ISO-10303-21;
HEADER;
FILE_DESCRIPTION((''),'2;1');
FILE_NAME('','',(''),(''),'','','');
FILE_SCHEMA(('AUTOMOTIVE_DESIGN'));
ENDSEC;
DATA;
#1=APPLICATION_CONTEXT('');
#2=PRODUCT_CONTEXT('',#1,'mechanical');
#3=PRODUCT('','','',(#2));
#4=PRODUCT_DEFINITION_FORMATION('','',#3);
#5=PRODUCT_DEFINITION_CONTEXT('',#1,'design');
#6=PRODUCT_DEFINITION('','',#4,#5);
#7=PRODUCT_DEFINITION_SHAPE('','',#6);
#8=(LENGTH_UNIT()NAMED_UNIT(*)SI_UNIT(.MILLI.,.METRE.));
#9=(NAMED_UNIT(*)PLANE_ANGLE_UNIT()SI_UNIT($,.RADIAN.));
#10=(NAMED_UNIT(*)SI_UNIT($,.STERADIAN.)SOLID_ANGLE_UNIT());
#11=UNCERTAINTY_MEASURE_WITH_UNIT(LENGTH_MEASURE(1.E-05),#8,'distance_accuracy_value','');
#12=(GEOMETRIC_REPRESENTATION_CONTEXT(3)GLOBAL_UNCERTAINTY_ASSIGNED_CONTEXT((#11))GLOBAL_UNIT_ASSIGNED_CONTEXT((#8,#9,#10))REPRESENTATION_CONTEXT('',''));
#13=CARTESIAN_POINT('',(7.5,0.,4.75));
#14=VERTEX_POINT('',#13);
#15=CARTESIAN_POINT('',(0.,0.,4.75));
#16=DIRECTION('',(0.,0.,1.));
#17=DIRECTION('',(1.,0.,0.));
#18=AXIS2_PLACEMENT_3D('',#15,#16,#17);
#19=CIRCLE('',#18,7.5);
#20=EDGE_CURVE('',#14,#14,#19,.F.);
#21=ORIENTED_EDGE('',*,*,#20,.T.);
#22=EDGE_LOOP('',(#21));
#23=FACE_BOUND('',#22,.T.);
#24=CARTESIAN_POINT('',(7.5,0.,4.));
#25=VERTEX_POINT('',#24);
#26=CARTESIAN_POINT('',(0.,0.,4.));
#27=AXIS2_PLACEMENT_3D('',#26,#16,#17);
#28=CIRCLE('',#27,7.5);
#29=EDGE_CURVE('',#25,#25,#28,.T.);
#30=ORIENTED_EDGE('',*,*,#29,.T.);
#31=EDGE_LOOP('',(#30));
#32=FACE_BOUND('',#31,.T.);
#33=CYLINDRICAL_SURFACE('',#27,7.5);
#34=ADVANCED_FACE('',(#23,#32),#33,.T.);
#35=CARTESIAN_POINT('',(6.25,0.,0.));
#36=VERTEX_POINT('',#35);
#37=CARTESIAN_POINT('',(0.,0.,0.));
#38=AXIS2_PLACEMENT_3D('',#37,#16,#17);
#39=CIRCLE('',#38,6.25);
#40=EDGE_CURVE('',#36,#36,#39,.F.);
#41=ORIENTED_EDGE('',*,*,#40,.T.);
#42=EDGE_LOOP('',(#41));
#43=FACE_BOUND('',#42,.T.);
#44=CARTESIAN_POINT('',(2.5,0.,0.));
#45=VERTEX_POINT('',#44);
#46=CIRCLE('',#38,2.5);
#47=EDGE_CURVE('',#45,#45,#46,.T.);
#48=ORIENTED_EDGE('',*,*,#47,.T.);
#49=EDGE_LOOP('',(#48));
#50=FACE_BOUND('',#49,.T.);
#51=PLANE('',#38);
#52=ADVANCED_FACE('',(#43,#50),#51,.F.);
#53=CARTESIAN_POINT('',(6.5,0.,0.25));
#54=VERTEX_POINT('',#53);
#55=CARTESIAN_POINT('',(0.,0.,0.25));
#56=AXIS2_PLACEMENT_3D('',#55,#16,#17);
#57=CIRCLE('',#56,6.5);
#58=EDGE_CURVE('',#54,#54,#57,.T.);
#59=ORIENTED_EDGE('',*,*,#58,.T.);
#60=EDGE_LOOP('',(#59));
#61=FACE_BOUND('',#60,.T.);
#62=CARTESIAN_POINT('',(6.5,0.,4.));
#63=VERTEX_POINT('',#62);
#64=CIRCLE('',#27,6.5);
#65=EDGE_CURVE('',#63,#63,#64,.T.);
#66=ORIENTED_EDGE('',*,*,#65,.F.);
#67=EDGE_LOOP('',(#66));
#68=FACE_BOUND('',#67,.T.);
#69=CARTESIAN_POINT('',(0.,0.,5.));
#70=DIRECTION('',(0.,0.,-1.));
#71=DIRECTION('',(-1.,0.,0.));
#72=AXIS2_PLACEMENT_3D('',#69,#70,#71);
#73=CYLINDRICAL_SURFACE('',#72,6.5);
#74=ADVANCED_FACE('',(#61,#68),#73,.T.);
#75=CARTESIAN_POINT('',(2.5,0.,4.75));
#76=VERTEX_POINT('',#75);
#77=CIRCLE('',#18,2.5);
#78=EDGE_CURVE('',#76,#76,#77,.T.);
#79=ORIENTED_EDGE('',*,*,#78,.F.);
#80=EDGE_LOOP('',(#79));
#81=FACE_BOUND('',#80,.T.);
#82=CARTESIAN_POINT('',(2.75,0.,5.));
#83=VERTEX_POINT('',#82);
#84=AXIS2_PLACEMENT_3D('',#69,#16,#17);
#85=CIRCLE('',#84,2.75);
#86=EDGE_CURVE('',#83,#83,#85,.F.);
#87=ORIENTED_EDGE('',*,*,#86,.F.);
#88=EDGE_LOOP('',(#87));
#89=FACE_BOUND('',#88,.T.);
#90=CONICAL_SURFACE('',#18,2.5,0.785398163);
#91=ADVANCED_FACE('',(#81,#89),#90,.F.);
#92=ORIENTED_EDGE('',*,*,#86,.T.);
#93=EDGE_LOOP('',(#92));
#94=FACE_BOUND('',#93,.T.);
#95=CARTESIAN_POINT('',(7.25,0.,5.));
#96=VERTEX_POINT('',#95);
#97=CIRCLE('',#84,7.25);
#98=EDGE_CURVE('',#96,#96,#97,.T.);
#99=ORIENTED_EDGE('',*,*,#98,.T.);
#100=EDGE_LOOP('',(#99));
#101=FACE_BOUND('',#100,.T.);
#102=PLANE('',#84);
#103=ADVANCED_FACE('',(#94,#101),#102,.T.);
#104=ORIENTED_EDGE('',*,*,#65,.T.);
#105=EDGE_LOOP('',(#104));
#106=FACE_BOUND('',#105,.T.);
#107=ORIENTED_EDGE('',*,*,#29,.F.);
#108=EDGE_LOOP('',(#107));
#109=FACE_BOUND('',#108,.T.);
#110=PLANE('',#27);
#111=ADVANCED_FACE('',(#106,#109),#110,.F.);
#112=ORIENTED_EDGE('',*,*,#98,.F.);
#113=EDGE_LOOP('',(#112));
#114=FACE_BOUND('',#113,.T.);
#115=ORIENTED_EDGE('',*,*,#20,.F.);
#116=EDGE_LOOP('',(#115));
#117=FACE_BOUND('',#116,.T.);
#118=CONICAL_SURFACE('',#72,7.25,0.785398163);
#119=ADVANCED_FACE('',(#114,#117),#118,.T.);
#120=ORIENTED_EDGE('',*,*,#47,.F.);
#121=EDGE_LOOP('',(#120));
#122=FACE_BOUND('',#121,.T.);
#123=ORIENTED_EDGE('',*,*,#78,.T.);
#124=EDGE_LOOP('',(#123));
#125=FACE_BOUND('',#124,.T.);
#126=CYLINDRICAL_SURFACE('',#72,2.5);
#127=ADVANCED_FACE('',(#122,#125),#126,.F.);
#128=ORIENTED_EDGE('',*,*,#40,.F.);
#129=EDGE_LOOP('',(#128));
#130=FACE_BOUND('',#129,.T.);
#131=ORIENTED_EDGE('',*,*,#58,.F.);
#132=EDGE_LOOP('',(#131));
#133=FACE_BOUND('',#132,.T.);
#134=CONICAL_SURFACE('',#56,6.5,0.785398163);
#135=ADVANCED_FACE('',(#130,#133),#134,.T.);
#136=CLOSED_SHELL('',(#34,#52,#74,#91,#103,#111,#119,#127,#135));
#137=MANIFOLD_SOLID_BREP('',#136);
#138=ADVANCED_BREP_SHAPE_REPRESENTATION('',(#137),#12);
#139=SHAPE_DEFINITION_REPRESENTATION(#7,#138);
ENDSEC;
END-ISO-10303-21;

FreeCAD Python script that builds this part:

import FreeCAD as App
import Part
import Sketcher

V = App.Vector


def edges_at(feature, points):
    """Names of the edges that pass closest to the given points."""
    edges = feature.Shape.Edges
    near = lambda p: min(range(len(edges)), key=lambda i: edges[i].distToShape(Part.Vertex(*p))[0])
    return sorted({f"Edge{near(p) + 1}" for p in points})

doc = App.newDocument("Part")
params = doc.addObject("Spreadsheet::Sheet", "Params")
for row, (alias, value) in enumerate([
    ("sketch1_diameter", "13 mm"),
    ("sketch1_diameter2", "5 mm"),
    ("pad1_length", "5 mm"),
    ("sketch2_diameter", "15 mm"),
    ("sketch2_diameter2", "6 mm"),
    ("pad2_length", "1 mm"),
    ("chamfer_size", "0.25 mm"),
], start=1):
    params.set(f"A{row}", alias)
    params.set(f"B{row}", "=" + value)
    params.setAlias(f"B{row}", alias)

body = doc.addObject("PartDesign::Body", "Body")

sketch1 = body.newObject("Sketcher::SketchObject", "Sketch")
sketch1.AttachmentSupport = (doc.getObject("XY_Plane"), [""])
sketch1.MapMode = "FlatFace"
sketch1.addGeometry([
    Part.Circle(V(0, 0, 0), V(0, 0, 1), 6.5),
    Part.Circle(V(0, 0, 0), V(0, 0, 1), 2.5),
], False)
sketch1.addConstraint([
    Sketcher.Constraint("Coincident", 0, 3, -1, 1),
    Sketcher.Constraint("Coincident", 1, 3, -1, 1),
    Sketcher.Constraint("Diameter", 0, 13.0),
    Sketcher.Constraint("Diameter", 1, 5.0),
])
sketch1.setExpression("Constraints[2]", "Params.sketch1_diameter")
sketch1.setExpression("Constraints[3]", "Params.sketch1_diameter2")
pad1 = body.newObject("PartDesign::Pad", "Pad")
pad1.Profile = sketch1
pad1.setExpression("Length", "Params.pad1_length")

sketch2 = body.newObject("Sketcher::SketchObject", "Sketch001")
sketch2.AttachmentSupport = (doc.getObject("XY_Plane"), [""])
sketch2.MapMode = "FlatFace"
sketch2.AttachmentOffset = App.Placement(V(0, 0, 5), App.Rotation())
sketch2.addGeometry([
    Part.Circle(V(0, 0, 0), V(0, 0, 1), 7.5),
    Part.Circle(V(0, 0, 0), V(0, 0, 1), 3),
], False)
sketch2.addConstraint([
    Sketcher.Constraint("Coincident", 0, 3, -1, 1),
    Sketcher.Constraint("Coincident", 1, 3, -1, 1),
    Sketcher.Constraint("Diameter", 0, 15.0),
    Sketcher.Constraint("Diameter", 1, 6.0),
])
sketch2.setExpression("Constraints[2]", "Params.sketch2_diameter")
sketch2.setExpression("Constraints[3]", "Params.sketch2_diameter2")
pad2 = body.newObject("PartDesign::Pad", "Pad001")
pad2.Profile = sketch2
pad2.setExpression("Length", "Params.pad2_length")
pad2.Reversed = True
doc.recompute()

chamfer = body.newObject("PartDesign::Chamfer", "Chamfer")
chamfer.Base = (pad2, edges_at(pad2, [(-7.5, 0, 5), (-6.5, 0, 0), (-2.5, 0, 5)]))
chamfer.setExpression("Size", "Params.chamfer_size")

doc.recompute()
